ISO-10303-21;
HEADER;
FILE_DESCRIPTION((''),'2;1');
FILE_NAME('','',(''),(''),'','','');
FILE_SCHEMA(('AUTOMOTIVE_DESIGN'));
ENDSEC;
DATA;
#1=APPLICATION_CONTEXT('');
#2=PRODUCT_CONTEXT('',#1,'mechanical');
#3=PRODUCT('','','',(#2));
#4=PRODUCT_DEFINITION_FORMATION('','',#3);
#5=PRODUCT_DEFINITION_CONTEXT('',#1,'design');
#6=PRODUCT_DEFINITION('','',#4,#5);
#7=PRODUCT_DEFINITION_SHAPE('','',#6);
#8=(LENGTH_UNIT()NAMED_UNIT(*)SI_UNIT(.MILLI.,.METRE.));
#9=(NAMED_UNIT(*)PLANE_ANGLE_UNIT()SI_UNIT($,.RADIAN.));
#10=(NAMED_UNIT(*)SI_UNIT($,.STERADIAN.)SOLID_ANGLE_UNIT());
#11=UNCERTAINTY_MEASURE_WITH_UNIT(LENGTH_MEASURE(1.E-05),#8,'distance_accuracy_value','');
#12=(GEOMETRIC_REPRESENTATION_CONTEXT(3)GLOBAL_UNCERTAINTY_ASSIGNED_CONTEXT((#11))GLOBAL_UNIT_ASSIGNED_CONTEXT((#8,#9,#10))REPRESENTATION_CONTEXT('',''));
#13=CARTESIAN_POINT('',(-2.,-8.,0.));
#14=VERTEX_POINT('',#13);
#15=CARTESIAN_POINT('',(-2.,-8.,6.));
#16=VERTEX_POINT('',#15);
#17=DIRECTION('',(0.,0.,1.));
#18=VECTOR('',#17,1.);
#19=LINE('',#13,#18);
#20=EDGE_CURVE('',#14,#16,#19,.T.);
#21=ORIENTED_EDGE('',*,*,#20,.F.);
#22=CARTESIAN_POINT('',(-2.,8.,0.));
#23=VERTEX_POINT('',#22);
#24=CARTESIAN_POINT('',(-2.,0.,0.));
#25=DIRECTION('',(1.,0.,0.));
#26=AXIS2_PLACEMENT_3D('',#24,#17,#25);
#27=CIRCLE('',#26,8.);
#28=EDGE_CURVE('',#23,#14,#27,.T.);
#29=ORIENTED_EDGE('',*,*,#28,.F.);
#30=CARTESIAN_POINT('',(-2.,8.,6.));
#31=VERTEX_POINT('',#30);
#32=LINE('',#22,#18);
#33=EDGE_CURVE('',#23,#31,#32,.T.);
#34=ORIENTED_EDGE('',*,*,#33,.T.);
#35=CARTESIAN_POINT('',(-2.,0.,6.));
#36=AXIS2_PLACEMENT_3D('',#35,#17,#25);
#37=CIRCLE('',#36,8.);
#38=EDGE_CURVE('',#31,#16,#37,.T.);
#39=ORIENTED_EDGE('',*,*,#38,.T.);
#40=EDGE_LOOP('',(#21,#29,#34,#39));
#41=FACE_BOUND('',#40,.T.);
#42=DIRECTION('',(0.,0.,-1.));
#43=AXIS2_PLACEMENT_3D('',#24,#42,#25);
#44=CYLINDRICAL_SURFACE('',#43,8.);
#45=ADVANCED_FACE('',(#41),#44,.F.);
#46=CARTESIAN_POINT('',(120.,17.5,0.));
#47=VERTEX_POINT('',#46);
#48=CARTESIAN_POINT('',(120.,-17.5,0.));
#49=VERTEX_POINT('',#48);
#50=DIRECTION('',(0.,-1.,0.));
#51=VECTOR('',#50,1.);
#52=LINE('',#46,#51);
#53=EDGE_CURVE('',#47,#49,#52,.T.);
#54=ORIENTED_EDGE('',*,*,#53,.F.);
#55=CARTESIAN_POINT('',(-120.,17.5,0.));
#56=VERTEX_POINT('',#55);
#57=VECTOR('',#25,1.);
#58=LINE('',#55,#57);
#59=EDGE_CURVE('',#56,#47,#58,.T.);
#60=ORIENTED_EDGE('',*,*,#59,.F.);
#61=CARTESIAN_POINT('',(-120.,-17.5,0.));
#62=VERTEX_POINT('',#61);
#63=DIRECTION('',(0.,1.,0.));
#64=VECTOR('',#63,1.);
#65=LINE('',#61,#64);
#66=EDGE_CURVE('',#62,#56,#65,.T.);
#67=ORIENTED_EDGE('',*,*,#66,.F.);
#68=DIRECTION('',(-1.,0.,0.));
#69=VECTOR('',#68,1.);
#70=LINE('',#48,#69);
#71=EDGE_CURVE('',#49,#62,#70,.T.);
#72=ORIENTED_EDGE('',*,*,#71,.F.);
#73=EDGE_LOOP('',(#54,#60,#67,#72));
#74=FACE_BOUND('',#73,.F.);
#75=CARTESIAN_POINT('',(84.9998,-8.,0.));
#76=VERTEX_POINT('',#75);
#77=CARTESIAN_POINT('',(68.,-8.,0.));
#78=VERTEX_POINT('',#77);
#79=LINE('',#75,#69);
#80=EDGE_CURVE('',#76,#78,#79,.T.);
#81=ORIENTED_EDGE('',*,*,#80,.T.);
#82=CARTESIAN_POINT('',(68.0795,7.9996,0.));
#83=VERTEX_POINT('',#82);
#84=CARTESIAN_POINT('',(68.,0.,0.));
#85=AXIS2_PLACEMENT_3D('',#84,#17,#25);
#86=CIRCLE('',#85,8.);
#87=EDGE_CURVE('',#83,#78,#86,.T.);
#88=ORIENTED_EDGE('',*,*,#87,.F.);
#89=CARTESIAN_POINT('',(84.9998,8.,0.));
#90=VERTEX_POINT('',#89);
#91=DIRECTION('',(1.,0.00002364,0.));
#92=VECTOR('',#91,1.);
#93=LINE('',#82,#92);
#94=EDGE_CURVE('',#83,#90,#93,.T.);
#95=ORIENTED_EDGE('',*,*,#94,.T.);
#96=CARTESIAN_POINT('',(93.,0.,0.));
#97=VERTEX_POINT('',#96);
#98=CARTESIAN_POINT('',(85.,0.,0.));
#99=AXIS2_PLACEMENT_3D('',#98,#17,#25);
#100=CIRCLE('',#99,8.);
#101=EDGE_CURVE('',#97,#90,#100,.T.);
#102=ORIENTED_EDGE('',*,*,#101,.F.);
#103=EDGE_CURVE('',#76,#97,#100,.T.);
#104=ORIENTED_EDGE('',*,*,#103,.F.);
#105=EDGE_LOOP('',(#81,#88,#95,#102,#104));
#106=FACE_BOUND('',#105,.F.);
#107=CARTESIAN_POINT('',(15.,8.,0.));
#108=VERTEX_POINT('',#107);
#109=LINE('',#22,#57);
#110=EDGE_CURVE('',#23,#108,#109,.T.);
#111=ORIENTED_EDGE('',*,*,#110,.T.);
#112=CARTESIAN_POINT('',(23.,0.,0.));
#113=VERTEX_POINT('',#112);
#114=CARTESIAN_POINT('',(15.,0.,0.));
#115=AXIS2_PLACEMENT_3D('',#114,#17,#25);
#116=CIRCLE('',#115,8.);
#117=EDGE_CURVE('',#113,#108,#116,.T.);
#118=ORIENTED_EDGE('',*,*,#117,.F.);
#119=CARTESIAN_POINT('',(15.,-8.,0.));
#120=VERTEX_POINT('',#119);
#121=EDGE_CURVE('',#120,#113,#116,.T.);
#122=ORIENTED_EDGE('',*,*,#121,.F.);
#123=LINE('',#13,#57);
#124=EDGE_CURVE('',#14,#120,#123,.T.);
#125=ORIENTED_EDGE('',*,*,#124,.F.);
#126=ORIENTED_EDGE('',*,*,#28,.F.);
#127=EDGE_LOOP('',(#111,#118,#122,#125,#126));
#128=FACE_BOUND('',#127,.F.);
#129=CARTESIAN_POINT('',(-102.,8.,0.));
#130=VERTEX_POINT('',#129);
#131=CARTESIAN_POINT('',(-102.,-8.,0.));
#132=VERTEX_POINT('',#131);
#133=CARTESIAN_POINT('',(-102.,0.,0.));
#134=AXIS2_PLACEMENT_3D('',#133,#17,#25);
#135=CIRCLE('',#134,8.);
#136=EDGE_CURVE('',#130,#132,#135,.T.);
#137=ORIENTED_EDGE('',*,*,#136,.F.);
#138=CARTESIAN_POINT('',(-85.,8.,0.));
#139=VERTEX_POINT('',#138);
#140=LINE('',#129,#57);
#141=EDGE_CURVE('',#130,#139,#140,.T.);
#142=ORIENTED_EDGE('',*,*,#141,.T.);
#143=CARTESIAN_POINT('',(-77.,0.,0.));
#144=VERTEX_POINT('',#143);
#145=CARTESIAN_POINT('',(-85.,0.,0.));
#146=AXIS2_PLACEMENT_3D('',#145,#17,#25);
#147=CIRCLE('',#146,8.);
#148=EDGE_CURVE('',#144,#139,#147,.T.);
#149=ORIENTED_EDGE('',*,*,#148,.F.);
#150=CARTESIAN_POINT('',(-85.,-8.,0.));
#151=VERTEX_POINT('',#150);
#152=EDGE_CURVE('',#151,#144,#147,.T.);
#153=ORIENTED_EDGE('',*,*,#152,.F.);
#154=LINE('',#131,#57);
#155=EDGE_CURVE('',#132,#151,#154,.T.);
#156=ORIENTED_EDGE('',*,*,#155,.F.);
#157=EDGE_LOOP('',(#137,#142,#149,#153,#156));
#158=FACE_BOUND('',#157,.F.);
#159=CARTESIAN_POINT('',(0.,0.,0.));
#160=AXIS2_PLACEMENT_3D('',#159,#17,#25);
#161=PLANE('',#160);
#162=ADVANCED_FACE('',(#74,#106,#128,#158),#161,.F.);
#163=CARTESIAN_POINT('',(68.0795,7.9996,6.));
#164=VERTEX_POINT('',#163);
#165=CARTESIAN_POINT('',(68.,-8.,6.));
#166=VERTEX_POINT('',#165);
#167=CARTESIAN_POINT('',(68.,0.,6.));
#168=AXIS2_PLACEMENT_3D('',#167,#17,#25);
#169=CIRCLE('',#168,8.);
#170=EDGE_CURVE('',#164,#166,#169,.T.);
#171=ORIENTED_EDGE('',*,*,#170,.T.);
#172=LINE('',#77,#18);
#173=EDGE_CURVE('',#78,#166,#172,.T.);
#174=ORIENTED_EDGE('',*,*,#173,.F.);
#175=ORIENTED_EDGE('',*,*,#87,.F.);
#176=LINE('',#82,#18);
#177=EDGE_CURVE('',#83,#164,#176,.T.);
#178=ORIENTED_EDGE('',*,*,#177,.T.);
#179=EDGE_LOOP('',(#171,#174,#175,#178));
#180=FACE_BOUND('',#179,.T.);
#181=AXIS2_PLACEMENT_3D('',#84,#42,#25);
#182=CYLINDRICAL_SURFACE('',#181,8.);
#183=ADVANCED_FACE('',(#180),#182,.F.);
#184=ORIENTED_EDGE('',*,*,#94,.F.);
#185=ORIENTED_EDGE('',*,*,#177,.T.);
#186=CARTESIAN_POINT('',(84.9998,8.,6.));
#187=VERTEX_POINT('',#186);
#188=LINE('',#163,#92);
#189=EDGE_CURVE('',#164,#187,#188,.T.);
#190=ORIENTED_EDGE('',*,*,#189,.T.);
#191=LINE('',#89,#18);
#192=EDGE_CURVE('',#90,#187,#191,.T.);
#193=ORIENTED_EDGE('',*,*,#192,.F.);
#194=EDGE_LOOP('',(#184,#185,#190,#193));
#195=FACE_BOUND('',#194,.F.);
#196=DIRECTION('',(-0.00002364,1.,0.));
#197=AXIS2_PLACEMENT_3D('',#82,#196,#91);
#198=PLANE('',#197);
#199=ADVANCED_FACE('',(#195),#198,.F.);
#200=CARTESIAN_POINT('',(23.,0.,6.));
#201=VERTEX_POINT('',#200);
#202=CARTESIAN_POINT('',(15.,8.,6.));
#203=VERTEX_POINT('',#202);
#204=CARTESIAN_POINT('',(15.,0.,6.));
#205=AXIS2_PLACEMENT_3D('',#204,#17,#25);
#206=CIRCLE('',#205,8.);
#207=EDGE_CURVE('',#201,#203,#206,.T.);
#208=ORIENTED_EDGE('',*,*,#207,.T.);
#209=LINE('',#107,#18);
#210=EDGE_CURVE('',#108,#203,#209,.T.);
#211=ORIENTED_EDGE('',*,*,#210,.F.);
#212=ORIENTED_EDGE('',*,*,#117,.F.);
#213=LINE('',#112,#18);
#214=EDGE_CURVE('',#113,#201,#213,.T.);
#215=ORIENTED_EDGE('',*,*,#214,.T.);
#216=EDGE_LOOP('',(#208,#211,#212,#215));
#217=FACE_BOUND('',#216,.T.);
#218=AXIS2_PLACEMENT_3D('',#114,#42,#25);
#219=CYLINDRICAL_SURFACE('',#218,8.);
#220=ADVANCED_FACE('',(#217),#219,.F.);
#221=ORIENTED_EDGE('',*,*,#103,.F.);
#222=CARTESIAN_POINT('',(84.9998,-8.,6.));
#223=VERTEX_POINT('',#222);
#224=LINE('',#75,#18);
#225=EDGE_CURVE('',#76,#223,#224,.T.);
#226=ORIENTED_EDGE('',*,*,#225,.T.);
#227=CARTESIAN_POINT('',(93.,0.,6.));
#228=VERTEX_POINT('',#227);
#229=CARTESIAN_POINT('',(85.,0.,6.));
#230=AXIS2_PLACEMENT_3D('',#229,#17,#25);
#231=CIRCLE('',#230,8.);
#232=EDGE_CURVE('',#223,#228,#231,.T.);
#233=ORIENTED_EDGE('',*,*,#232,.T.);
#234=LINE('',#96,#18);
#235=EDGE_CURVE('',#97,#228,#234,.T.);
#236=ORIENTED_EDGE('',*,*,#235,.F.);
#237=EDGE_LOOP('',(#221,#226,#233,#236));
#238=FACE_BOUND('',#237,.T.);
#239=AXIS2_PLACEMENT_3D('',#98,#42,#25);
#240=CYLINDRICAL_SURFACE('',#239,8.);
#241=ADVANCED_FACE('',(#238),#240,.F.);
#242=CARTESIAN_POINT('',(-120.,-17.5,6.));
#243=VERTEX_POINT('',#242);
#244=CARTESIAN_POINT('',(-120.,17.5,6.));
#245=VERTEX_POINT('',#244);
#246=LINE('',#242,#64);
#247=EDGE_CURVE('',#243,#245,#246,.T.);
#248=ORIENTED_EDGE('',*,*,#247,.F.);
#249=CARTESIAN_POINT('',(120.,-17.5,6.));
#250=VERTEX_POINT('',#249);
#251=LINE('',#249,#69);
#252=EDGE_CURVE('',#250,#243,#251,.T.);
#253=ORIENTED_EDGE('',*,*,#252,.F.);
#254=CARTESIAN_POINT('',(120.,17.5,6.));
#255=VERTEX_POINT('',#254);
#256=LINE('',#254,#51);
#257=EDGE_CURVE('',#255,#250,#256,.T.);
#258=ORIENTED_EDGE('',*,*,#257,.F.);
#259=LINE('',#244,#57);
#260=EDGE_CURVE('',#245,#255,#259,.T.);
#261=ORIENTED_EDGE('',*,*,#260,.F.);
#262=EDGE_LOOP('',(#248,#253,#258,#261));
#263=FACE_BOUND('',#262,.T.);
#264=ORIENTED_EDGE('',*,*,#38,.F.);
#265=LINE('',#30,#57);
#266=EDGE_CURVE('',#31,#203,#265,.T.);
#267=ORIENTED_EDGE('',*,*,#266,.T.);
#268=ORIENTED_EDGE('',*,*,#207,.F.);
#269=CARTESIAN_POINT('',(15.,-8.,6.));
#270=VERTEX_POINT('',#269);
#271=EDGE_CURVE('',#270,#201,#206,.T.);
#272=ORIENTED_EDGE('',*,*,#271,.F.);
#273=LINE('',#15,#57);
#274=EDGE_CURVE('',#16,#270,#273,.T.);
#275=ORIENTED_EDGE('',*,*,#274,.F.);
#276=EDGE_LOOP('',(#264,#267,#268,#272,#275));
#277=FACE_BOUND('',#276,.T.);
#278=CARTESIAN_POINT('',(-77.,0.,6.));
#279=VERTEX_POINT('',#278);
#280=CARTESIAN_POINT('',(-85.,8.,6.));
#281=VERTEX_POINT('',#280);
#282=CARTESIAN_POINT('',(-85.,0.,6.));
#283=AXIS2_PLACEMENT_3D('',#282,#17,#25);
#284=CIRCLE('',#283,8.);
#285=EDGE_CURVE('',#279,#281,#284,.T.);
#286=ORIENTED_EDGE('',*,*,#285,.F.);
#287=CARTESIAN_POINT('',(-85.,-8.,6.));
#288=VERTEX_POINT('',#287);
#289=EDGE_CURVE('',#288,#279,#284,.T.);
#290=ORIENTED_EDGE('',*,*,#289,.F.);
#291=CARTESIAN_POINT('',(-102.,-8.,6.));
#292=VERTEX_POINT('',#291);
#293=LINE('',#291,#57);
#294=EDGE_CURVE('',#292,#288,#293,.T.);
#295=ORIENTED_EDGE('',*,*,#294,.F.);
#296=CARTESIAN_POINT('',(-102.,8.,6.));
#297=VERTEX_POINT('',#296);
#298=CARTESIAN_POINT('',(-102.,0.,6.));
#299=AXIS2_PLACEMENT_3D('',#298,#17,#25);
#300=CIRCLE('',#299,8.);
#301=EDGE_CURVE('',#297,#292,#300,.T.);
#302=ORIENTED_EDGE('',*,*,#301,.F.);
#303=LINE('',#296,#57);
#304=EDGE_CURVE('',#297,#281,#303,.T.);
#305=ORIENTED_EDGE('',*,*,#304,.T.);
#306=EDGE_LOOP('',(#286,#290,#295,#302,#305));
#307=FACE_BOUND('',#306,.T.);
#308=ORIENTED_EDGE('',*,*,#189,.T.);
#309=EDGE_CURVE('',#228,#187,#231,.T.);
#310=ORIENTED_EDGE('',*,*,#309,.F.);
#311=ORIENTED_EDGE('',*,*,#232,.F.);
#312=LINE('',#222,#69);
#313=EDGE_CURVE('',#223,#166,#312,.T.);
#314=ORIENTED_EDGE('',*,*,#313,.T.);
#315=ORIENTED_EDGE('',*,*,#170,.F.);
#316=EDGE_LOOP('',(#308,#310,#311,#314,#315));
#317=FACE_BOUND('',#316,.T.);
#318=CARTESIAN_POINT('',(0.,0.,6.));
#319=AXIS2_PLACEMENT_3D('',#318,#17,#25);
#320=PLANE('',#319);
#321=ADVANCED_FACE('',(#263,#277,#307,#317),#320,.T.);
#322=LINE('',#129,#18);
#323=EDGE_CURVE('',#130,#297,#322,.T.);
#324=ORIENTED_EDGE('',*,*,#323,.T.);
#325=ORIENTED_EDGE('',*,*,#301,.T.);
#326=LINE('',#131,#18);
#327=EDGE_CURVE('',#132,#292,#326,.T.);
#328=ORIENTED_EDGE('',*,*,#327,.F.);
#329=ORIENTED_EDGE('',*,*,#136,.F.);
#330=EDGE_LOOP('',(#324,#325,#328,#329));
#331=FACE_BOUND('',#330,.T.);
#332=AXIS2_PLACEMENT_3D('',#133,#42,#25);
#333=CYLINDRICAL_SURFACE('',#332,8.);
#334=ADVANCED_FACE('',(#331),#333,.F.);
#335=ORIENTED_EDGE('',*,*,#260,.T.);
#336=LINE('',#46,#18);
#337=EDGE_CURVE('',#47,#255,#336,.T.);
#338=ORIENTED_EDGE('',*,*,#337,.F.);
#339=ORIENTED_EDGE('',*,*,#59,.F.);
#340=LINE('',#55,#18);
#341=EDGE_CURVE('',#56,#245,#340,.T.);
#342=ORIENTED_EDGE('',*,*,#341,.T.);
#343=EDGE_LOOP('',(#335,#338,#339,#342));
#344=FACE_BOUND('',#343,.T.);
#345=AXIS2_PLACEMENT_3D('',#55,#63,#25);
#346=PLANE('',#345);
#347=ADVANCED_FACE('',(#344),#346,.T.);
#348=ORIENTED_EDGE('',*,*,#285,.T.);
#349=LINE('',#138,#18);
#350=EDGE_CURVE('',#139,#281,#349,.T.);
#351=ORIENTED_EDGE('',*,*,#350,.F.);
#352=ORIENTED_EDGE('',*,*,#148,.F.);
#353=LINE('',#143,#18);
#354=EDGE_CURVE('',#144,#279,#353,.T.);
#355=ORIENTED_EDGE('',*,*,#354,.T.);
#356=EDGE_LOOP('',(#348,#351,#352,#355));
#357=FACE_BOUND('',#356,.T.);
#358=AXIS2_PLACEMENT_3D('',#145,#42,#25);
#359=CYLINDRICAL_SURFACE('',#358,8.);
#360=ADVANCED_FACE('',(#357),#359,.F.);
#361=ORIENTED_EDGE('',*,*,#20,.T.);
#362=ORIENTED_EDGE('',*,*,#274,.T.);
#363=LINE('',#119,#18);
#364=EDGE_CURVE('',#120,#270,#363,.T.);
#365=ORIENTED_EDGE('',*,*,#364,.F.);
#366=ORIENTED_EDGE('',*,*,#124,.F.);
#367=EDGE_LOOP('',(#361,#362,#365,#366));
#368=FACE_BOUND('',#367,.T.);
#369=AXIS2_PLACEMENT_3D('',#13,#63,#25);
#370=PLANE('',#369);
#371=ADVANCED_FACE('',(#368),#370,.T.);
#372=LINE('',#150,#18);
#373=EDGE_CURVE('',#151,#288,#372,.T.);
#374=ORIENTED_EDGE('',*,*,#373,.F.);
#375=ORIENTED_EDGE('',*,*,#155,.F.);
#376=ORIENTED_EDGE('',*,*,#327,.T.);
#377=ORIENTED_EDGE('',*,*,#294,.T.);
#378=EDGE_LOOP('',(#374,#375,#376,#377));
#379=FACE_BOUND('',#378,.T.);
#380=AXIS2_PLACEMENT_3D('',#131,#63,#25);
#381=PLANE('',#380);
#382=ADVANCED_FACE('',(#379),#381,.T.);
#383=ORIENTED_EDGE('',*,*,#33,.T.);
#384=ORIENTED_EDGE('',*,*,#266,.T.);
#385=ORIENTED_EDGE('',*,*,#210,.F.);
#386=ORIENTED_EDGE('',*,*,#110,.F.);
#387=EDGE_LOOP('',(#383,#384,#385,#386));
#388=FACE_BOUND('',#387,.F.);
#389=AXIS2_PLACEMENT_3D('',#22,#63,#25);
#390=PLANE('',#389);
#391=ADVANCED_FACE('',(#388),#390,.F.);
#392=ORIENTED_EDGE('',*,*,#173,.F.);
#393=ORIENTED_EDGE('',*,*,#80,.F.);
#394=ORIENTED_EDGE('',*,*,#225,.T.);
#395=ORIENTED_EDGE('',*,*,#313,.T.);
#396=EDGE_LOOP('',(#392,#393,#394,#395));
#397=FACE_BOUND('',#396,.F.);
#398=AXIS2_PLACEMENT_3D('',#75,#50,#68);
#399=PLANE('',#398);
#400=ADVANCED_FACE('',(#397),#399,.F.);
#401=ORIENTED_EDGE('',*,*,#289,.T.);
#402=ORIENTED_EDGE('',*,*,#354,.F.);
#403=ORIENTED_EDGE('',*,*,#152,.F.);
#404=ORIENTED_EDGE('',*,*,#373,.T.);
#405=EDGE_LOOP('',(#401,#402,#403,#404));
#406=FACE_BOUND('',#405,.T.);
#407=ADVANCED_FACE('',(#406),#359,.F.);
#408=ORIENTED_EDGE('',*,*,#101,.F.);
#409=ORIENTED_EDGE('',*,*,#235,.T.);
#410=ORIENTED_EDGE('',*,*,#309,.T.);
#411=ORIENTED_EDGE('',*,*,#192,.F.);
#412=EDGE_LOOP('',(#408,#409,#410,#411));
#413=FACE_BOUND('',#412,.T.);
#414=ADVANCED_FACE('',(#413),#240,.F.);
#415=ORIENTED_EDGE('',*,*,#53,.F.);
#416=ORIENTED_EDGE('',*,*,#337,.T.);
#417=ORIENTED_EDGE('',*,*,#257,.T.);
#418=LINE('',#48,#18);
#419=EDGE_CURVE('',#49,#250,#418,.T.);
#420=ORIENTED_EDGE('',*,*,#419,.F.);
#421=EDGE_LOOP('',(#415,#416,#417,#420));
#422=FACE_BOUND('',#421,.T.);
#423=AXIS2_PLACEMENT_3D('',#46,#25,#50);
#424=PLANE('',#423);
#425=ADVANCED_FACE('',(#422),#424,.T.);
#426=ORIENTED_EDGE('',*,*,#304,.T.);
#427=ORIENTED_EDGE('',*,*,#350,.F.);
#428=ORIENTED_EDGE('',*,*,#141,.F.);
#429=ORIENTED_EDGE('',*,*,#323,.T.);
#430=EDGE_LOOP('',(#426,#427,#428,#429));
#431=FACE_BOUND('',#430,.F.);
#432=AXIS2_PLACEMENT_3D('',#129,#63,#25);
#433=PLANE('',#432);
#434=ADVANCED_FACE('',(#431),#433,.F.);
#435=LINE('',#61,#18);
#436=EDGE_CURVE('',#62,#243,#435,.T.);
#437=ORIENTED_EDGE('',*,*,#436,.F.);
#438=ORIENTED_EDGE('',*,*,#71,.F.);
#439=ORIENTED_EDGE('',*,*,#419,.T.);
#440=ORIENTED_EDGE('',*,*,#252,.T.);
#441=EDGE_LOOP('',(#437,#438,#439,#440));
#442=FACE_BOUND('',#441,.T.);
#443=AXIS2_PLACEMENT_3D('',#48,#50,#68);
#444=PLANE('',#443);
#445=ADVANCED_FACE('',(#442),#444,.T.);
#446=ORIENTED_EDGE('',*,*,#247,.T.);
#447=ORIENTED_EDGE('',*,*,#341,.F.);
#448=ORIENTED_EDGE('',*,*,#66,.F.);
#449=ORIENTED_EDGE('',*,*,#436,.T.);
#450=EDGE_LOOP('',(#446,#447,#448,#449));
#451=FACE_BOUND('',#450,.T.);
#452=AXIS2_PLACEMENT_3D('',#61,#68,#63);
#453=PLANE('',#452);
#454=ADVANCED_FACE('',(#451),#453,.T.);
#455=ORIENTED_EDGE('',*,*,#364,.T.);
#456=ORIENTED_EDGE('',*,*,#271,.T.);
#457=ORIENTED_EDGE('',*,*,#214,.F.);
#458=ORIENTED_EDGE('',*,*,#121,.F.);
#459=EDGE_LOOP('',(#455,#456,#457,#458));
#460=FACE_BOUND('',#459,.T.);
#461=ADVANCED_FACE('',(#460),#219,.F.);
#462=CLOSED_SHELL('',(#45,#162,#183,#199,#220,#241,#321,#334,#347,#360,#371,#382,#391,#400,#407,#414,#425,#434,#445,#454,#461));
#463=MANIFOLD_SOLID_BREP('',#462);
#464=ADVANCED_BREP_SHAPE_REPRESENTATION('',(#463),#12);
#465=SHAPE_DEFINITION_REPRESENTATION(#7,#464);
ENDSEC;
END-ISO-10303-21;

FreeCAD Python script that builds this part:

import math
import FreeCAD as App
import Part
import Sketcher

V = App.Vector
Q = App.Units.Quantity


def add_polygon(sketch, points):
    """Adds a closed chain of lines whose ends are joined by coincident constraints."""
    first, n = sketch.GeometryCount, len(points)
    for a, b in zip(points, points[1:] + points[:1]):
        sketch.addGeometry(Part.LineSegment(App.Vector(*a, 0), App.Vector(*b, 0)), False)
    for i in range(n):
        sketch.addConstraint(Sketcher.Constraint("Coincident", first + i, 2, first + (i + 1) % n, 1))

doc = App.newDocument("Part")
body = doc.addObject("PartDesign::Body", "Body")

# Sketch on XY plane
sketch1 = body.newObject("Sketcher::SketchObject", "Sketch")
sketch1.AttachmentSupport = (doc.getObject("XY_Plane"), [""])
sketch1.MapMode = "FlatFace"
add_polygon(sketch1, [(-120, -17.5), (120, -17.5), (120, 17.5), (-120, 17.5)])  # lines 0-3
sketch1.addGeometry(Part.ArcOfCircle(Part.Circle(V(-102, 0, 0), V(0, 0, 1), 8), math.radians(90), math.radians(270)), False)  # 4
sketch1.addGeometry(Part.LineSegment(V(-102, 8, 0), V(-85, 8, 0)), False)  # 5
sketch1.addGeometry(Part.ArcOfCircle(Part.Circle(V(-85, 0, 0), V(0, 0, 1), 8), math.radians(-90), math.radians(90)), False)  # 6
sketch1.addGeometry(Part.LineSegment(V(-85, -8, 0), V(-102, -8, 0)), False)  # 7
sketch1.addGeometry(Part.ArcOfCircle(Part.Circle(V(-2, 0, 0), V(0, 0, 1), 8), math.radians(90), math.radians(270)), False)  # 8
sketch1.addGeometry(Part.LineSegment(V(-2, 8, 0), V(15, 8, 0)), False)  # 9
sketch1.addGeometry(Part.ArcOfCircle(Part.Circle(V(15, 0, 0), V(0, 0, 1), 8), math.radians(-90), math.radians(90)), False)  # 10
sketch1.addGeometry(Part.LineSegment(V(15, -8, 0), V(-2, -8, 0)), False)  # 11
sketch1.addGeometry(Part.ArcOfCircle(Part.Circle(V(68, 0, 0), V(0, 0, 1), 8), math.radians(89.430613), math.radians(270)), False)  # 12
sketch1.addGeometry(Part.LineSegment(V(68.0795, 7.9996, 0), V(84.9998, 8, 0)), False)  # 13
sketch1.addGeometry(Part.ArcOfCircle(Part.Circle(V(85, 0, 0), V(0, 0, 1), 8), math.radians(-90.001432), math.radians(90.001432)), False)  # 14
sketch1.addGeometry(Part.LineSegment(V(84.9998, -8, 0), V(68, -8, 0)), False)  # 15
sketch1.addConstraint([
    Sketcher.Constraint("Coincident", 4, 1, 5, 1),
    Sketcher.Constraint("Coincident", 5, 2, 6, 2),
    Sketcher.Constraint("Coincident", 6, 1, 7, 1),
    Sketcher.Constraint("Coincident", 7, 2, 4, 2),
    Sketcher.Constraint("Coincident", 8, 1, 9, 1),
    Sketcher.Constraint("Coincident", 9, 2, 10, 2),
    Sketcher.Constraint("Coincident", 10, 1, 11, 1),
    Sketcher.Constraint("Coincident", 11, 2, 8, 2),
    Sketcher.Constraint("Coincident", 12, 1, 13, 1),
    Sketcher.Constraint("Coincident", 13, 2, 14, 2),
    Sketcher.Constraint("Coincident", 14, 1, 15, 1),
    Sketcher.Constraint("Coincident", 15, 2, 12, 2),
    Sketcher.Constraint("Horizontal", 0),
    Sketcher.Constraint("Vertical", 1),
    Sketcher.Constraint("Horizontal", 2),
    Sketcher.Constraint("Vertical", 3),
    Sketcher.Constraint("Horizontal", 5),
    Sketcher.Constraint("Horizontal", 7),
    Sketcher.Constraint("Horizontal", 9),
    Sketcher.Constraint("Horizontal", 11),
    Sketcher.Constraint("Horizontal", 15),
    Sketcher.Constraint("PointOnObject", 4, 3, -1),
    Sketcher.Constraint("PointOnObject", 8, 3, -1),
    Sketcher.Constraint("PointOnObject", 12, 3, -1),
    Sketcher.Constraint("PointOnObject", 14, 3, -1),
    Sketcher.Constraint("Radius", 4, Q("8 mm")),
    Sketcher.Constraint("Radius", 8, Q("8 mm")),
    Sketcher.Constraint("Radius", 12, Q("8 mm")),
    Sketcher.Constraint("DistanceX", 0, 1, 0, 2, Q("240 mm")),
    Sketcher.Constraint("DistanceY", 1, 1, 1, 2, Q("35 mm")),
    Sketcher.Constraint("DistanceX", 4, 3, 8, 3, Q("100 mm")),
    Sketcher.Constraint("DistanceX", 6, 3, 10, 3, Q("100 mm")),
    Sketcher.Constraint("DistanceX", 8, 3, 12, 3, Q("70 mm")),
    Sketcher.Constraint("DistanceX", 10, 3, 14, 3, Q("70 mm")),
    Sketcher.Constraint("DistanceX", 14, 3, 0, 2, Q("35 mm")),
    Sketcher.Constraint("DistanceX", 4, 1, 8, 3, Q("100 mm")),
    Sketcher.Constraint("DistanceX", 2, 2, 5, 2, Q("35 mm")),
    Sketcher.Constraint("DistanceX", 3, 2, 6, 1, Q("35 mm")),
    Sketcher.Constraint("DistanceX", 8, 1, 12, 3, Q("70 mm")),
    Sketcher.Constraint("DistanceX", 9, 2, 14, 3, Q("70 mm")),
    Sketcher.Constraint("DistanceX", 5, 1, 5, 2, Q("17 mm")),
    Sketcher.Constraint("DistanceX", 7, 2, 7, 1, Q("17 mm")),
    Sketcher.Constraint("DistanceX", 11, 2, 11, 1, Q("17 mm")),
    Sketcher.Constraint("DistanceX", 4, 3, -1, 1, Q("102 mm")),
    Sketcher.Constraint("DistanceX", -1, 1, 10, 1, Q("15 mm")),
    Sketcher.Constraint("DistanceX", -1, 1, 15, 2, Q("68 mm")),
    Sketcher.Constraint("DistanceY", -1, 1, 12, 1, Q("7.9996 mm")),
    Sketcher.Constraint("DistanceY", 0, 2, -1, 1, Q("17.5 mm")),
    Sketcher.Constraint("DistanceX", 13, 2, 1, 2, Q("35.0002 mm")),
    Sketcher.Constraint("DistanceX", 14, 1, 0, 2, Q("35.0002 mm")),
])
pad1 = body.newObject("PartDesign::Pad", "Pad")
pad1.Profile = sketch1
pad1.Length = 6

doc.recompute()
